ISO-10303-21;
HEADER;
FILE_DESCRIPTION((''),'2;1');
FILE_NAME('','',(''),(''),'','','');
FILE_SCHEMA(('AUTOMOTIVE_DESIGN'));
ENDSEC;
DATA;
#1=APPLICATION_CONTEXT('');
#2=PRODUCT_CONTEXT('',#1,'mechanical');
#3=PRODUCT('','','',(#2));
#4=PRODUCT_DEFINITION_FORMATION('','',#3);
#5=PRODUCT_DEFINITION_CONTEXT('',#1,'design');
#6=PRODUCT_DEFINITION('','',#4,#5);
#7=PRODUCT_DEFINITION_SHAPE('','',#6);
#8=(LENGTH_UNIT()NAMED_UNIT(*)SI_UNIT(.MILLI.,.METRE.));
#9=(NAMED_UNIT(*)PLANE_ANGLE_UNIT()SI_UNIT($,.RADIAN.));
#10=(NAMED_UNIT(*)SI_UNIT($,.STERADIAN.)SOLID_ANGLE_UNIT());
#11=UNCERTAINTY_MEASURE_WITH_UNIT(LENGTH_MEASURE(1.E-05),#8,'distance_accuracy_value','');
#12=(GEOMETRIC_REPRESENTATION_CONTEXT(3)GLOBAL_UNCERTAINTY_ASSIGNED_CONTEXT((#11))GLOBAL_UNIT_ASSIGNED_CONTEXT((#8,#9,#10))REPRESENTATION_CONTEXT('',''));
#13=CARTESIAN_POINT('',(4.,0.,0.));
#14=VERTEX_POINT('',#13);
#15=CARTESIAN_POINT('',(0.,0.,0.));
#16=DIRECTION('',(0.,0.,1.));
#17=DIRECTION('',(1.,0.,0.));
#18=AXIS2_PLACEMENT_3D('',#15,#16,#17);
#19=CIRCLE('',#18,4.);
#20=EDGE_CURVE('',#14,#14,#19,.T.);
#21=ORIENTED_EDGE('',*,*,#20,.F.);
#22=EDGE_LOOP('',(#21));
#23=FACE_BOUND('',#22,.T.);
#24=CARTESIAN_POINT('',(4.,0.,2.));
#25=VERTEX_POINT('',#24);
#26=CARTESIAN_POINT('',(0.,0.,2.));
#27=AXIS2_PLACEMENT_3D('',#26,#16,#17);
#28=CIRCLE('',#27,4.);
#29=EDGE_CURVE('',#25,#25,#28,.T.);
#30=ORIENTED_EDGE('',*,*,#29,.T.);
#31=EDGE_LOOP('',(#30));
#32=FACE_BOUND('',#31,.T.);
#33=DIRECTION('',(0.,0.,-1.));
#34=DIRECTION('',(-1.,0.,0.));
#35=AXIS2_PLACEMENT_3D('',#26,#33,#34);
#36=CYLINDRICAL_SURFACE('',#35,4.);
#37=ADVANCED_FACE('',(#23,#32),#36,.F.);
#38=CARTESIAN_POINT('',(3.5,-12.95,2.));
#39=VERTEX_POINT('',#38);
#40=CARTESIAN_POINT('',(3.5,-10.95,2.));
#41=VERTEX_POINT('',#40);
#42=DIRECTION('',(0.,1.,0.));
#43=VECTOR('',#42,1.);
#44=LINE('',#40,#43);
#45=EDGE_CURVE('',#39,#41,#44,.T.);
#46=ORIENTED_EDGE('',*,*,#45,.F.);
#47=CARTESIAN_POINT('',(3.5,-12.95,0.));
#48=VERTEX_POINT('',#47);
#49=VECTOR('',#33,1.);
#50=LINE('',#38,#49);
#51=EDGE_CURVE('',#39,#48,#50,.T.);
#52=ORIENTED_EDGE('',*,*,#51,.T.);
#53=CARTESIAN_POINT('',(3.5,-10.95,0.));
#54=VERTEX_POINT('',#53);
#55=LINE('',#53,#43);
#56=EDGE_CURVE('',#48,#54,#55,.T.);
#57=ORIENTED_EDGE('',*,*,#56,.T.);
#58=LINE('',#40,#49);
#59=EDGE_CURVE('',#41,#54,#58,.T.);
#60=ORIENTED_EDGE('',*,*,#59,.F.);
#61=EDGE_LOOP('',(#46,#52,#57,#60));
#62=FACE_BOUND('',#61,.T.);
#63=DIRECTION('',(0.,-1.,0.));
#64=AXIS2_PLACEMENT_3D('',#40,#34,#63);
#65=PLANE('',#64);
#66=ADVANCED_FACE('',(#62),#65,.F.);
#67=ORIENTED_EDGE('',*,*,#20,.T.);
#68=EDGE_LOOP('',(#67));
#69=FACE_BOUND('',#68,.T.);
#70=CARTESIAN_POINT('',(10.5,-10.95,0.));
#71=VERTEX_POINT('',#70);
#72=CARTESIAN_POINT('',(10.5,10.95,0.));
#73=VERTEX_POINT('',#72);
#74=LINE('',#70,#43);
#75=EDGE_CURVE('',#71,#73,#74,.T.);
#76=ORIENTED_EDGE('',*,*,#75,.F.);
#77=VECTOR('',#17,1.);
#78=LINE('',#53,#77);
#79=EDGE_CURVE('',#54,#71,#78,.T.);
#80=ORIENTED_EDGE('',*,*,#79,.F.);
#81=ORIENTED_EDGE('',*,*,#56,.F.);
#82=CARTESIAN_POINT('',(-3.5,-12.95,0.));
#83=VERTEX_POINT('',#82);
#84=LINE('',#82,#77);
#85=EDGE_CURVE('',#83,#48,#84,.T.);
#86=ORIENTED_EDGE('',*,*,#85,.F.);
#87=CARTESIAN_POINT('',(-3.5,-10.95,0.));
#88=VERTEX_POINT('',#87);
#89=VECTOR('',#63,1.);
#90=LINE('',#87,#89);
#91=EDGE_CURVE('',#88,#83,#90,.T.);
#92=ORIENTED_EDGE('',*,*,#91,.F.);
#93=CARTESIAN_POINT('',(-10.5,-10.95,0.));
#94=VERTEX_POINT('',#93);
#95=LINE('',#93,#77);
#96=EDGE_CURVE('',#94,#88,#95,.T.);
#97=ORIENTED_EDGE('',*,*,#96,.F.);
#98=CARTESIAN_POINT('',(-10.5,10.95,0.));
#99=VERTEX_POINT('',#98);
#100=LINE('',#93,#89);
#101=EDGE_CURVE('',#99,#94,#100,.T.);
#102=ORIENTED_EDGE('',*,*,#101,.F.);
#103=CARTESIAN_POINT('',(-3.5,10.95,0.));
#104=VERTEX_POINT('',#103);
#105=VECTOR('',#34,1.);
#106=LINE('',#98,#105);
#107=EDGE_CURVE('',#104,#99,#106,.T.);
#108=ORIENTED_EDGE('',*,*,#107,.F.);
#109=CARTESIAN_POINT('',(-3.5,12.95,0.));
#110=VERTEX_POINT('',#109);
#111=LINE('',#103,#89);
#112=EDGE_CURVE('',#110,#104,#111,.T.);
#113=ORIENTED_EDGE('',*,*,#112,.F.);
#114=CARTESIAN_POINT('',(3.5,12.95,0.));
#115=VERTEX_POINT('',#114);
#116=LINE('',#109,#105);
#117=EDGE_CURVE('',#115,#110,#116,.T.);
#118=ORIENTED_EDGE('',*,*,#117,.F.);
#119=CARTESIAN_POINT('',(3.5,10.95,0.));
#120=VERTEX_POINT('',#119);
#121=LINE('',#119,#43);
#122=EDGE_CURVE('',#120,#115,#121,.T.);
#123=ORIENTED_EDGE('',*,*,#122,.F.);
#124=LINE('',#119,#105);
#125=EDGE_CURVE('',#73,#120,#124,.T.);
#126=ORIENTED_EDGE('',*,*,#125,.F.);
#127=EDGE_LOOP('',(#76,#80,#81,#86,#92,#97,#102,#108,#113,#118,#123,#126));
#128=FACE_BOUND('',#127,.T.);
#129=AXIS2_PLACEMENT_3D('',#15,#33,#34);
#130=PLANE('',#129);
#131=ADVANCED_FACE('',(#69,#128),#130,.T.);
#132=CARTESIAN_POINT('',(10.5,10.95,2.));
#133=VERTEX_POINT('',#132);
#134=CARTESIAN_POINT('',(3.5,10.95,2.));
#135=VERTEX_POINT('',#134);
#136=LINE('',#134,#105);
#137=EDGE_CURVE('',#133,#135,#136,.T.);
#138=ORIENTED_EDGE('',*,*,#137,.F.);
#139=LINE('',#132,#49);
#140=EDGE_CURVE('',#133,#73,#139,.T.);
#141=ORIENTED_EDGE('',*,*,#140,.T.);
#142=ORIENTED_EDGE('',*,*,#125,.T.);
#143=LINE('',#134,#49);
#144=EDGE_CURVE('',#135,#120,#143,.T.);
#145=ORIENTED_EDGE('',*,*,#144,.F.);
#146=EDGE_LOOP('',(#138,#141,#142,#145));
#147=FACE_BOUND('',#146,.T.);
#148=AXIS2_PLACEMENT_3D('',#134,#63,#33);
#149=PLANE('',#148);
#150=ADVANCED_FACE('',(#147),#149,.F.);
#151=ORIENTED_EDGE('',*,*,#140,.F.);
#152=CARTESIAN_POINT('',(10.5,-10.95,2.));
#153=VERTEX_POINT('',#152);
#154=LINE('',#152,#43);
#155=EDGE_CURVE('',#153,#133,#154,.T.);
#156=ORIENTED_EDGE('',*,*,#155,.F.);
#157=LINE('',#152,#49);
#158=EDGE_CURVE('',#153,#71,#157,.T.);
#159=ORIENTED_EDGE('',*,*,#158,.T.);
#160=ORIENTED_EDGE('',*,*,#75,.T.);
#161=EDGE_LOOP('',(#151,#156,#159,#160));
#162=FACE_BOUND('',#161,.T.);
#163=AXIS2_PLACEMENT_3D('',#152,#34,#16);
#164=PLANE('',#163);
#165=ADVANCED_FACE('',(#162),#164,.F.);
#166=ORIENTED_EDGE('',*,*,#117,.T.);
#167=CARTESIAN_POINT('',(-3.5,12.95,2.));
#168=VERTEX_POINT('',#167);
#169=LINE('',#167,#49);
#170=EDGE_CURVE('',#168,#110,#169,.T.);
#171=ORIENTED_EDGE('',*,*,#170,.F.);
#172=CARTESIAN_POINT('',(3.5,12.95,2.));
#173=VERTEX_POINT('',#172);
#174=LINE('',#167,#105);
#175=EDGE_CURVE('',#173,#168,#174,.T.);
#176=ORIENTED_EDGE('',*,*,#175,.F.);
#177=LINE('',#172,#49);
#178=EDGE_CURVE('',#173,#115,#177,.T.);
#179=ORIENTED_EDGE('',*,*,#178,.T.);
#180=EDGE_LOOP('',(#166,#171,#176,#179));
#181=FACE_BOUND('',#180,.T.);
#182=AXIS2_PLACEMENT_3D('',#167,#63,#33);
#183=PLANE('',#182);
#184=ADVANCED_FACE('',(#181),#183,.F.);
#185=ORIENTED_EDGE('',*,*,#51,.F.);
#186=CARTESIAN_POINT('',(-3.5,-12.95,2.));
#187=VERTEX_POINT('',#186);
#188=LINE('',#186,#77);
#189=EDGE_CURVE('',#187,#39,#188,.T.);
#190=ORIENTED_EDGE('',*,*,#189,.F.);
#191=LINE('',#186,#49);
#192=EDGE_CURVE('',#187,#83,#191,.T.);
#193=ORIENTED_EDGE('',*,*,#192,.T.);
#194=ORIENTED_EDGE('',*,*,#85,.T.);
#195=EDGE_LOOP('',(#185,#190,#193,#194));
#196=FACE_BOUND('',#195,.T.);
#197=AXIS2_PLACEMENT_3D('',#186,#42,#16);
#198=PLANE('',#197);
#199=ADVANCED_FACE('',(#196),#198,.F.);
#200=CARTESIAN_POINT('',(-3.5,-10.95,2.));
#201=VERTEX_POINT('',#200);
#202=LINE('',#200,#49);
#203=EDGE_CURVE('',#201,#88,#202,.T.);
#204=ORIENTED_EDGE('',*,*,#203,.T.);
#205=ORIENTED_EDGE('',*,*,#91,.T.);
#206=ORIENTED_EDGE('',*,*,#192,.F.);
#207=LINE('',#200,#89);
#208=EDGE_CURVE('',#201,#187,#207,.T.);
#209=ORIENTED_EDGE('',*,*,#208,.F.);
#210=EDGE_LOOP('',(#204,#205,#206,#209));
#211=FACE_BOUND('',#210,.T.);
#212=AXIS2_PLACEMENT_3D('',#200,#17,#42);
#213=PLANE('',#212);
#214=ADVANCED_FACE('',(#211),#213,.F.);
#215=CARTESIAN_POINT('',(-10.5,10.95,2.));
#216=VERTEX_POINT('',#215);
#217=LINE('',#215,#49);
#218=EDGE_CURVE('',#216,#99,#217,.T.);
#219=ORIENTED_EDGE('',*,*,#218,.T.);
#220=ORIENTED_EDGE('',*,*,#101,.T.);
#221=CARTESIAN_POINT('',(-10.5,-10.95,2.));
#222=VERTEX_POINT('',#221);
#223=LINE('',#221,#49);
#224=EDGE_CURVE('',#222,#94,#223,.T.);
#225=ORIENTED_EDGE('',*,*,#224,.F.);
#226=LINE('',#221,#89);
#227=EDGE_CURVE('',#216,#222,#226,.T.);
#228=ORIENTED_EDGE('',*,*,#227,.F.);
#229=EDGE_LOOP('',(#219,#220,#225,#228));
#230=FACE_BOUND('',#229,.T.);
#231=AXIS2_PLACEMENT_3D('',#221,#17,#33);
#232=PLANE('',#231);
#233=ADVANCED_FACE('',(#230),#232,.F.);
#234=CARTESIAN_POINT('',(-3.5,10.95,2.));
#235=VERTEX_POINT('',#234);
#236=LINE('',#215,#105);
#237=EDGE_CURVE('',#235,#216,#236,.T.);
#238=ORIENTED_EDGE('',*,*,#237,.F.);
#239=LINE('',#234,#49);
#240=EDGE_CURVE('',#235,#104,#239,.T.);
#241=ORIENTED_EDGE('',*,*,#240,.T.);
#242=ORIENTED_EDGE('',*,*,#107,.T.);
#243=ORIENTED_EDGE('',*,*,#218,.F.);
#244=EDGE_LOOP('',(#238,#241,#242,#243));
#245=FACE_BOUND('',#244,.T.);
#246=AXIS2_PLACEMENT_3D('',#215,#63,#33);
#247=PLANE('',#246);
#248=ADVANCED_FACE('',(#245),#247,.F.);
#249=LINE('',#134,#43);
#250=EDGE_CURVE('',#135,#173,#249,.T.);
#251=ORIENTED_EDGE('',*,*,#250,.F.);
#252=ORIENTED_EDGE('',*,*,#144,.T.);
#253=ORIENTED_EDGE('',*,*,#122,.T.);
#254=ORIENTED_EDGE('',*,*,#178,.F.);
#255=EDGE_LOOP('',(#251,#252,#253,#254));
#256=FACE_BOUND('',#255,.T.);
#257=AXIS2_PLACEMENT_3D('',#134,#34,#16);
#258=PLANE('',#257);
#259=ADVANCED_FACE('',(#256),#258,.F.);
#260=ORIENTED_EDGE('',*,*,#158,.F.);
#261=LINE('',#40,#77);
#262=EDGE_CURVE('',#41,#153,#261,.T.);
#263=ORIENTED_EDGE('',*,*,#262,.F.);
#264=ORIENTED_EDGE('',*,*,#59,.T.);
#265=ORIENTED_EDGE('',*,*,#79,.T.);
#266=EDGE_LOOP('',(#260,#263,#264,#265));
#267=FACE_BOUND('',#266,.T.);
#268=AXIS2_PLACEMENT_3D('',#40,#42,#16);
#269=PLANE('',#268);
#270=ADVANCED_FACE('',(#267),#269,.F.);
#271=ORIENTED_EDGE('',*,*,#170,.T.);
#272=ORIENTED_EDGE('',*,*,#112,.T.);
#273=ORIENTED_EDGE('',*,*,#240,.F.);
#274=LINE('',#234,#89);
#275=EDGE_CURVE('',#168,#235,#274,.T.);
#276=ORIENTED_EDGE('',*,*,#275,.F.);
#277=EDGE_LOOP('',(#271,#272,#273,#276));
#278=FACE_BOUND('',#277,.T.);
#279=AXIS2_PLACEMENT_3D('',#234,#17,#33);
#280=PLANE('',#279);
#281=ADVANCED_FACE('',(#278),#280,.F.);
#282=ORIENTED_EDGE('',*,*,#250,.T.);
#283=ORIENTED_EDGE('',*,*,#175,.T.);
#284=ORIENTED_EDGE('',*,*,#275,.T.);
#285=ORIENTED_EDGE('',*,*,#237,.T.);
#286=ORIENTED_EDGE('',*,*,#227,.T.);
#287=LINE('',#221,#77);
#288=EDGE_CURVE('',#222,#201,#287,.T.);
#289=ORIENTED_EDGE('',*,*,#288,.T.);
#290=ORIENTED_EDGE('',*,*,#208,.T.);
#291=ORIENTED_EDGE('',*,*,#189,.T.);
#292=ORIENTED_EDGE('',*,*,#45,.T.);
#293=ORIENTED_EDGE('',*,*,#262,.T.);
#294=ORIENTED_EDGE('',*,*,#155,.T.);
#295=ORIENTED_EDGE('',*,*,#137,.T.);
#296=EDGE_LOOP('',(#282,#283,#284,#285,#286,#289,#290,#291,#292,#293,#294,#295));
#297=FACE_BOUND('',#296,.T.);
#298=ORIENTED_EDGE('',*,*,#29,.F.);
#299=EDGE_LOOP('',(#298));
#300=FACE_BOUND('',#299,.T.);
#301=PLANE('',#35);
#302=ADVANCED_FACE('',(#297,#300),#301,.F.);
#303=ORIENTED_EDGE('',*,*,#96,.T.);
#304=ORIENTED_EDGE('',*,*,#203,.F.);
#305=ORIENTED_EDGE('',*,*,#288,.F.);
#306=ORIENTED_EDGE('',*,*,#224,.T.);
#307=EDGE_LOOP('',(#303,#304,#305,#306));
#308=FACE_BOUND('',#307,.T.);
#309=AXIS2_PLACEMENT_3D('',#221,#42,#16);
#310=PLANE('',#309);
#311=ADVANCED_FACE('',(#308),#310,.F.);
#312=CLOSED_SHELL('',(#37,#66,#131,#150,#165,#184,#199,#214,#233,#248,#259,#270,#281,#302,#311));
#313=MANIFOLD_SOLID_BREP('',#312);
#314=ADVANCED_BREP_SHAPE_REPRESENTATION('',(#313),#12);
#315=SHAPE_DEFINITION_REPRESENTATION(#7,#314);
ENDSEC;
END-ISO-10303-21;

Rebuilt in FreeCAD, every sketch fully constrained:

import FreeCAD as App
import Part
import Sketcher

V = App.Vector
Q = App.Units.Quantity

doc = App.newDocument("Part")
body = doc.addObject("PartDesign::Body", "Body")

# Sketch on XY plane
sketch1 = body.newObject("Sketcher::SketchObject", "Sketch")
sketch1.AttachmentSupport = (doc.getObject("XY_Plane"), [""])
sketch1.MapMode = "FlatFace"
sketch1.addGeometry([
    Part.LineSegment(V(10.5, 10.95, 0), V(3.5, 10.95, 0)),  # 0
    Part.LineSegment(V(3.5, 10.95, 0), V(3.5, 12.95, 0)),  # 1
    Part.LineSegment(V(3.5, 12.95, 0), V(-3.5, 12.95, 0)),  # 2
    Part.LineSegment(V(-3.5, 12.95, 0), V(-3.5, 10.95, 0)),  # 3
    Part.LineSegment(V(-3.5, 10.95, 0), V(-10.5, 10.95, 0)),  # 4
    Part.LineSegment(V(-10.5, 10.95, 0), V(-10.5, -10.95, 0)),  # 5
    Part.LineSegment(V(-10.5, -10.95, 0), V(-3.5, -10.95, 0)),  # 6
    Part.LineSegment(V(-3.5, -10.95, 0), V(-3.5, -12.95, 0)),  # 7
    Part.LineSegment(V(-3.5, -12.95, 0), V(3.5, -12.95, 0)),  # 8
    Part.LineSegment(V(3.5, -12.95, 0), V(3.5, -10.95, 0)),  # 9
    Part.LineSegment(V(3.5, -10.95, 0), V(10.5, -10.95, 0)),  # 10
    Part.LineSegment(V(10.5, -10.95, 0), V(10.5, 10.95, 0)),  # 11
    Part.Circle(V(0, 0, 0), V(0, 0, 1), 4),  # 12
], False)
sketch1.addConstraint([
    Sketcher.Constraint("Coincident", 0, 2, 1, 1),
    Sketcher.Constraint("Coincident", 1, 2, 2, 1),
    Sketcher.Constraint("Coincident", 2, 2, 3, 1),
    Sketcher.Constraint("Coincident", 3, 2, 4, 1),
    Sketcher.Constraint("Coincident", 4, 2, 5, 1),
    Sketcher.Constraint("Coincident", 5, 2, 6, 1),
    Sketcher.Constraint("Coincident", 6, 2, 7, 1),
    Sketcher.Constraint("Coincident", 7, 2, 8, 1),
    Sketcher.Constraint("Coincident", 8, 2, 9, 1),
    Sketcher.Constraint("Coincident", 9, 2, 10, 1),
    Sketcher.Constraint("Coincident", 10, 2, 11, 1),
    Sketcher.Constraint("Coincident", 11, 2, 0, 1),
    Sketcher.Constraint("Horizontal", 0),
    Sketcher.Constraint("Vertical", 1),
    Sketcher.Constraint("Horizontal", 2),
    Sketcher.Constraint("Vertical", 3),
    Sketcher.Constraint("Horizontal", 4),
    Sketcher.Constraint("Vertical", 5),
    Sketcher.Constraint("Horizontal", 6),
    Sketcher.Constraint("Vertical", 7),
    Sketcher.Constraint("Horizontal", 8),
    Sketcher.Constraint("Vertical", 9),
    Sketcher.Constraint("Horizontal", 10),
    Sketcher.Constraint("Vertical", 11),
    Sketcher.Constraint("Coincident", 12, 3, -1, 1),
    Sketcher.Constraint("Symmetric", 0, 2, 6, 2, -1, 1),
    Sketcher.Constraint("Symmetric", 2, 2, 8, 2, -1, 1),
    Sketcher.Constraint("Symmetric", 4, 2, 10, 2, -1, 1),
    Sketcher.Constraint("Symmetric", 0, 2, 3, 2, -2),
    Sketcher.Constraint("Equal", 0, 2),
    Sketcher.Constraint("Diameter", 12, Q("8 mm")),
    Sketcher.Constraint("DistanceX", 0, 2, 0, 1, Q("7 mm")),
    Sketcher.Constraint("DistanceY", 1, 1, 1, 2, Q("2 mm")),
    Sketcher.Constraint("DistanceY", 5, 2, 5, 1, Q("21.9 mm")),
])
pad1 = body.newObject("PartDesign::Pad", "Pad")
pad1.Profile = sketch1
pad1.Length = 2

doc.recompute()
